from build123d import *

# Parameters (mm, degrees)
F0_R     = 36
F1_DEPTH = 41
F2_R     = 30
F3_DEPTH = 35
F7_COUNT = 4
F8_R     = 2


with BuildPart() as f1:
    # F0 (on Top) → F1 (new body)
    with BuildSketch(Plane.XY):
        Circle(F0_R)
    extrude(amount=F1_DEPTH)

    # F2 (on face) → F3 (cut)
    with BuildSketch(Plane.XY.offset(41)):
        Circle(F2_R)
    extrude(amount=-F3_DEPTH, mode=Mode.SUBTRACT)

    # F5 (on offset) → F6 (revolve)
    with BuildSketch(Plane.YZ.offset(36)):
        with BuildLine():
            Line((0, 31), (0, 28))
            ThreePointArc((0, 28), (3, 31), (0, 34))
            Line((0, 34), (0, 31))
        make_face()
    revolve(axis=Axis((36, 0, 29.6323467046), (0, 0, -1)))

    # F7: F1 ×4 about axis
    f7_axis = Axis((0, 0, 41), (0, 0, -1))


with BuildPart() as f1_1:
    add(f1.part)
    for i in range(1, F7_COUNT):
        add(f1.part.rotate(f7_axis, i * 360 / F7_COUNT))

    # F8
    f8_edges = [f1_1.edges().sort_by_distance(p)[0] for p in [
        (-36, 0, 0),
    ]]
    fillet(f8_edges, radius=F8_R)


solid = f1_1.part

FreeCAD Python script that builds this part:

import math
import FreeCAD as App
import Part
import Sketcher
Q = App.Units.Quantity


def edges_at(feature, points):
    """Names of the edges that pass closest to the given points."""
    edges = feature.Shape.Edges
    near = lambda p: min(range(len(edges)), key=lambda i: edges[i].distToShape(Part.Vertex(*p))[0])
    return sorted({f"Edge{near(p) + 1}" for p in points})

doc = App.newDocument("Part")
body = doc.addObject("PartDesign::Body", "Body")

# Sketch on XY plane
sketch1 = doc.addObject("Sketcher::SketchObject", "Sketch")
body.addObject(sketch1)
sketch1.AttachmentSupport = (doc.XY_Plane, [""])
sketch1.MapMode = "FlatFace"
sketch1.addGeometry(Part.Circle(App.Vector(0, 0, 0), App.Vector(0, 0, 1), 36), False)
sketch1.addConstraint(Sketcher.Constraint("Coincident", 0, 3, -1, 1))
sketch1.addConstraint(Sketcher.Constraint("Diameter", 0, Q("72 mm")))
pad1 = doc.addObject("PartDesign::Pad", "Pad")
body.addObject(pad1)
pad1.Profile = sketch1
pad1.Length = 41

# Sketch on XY plane
sketch2 = doc.addObject("Sketcher::SketchObject", "Sketch001")
body.addObject(sketch2)
sketch2.AttachmentSupport = (doc.XY_Plane, [""])
sketch2.MapMode = "FlatFace"
sketch2.AttachmentOffset = App.Placement(App.Vector(0, 0, 41), App.Rotation())
sketch2.addGeometry(Part.Circle(App.Vector(0, 0, 0), App.Vector(0, 0, 1), 30), False)
sketch2.addConstraint(Sketcher.Constraint("Coincident", 0, 3, -1, 1))
sketch2.addConstraint(Sketcher.Constraint("Diameter", 0, Q("60 mm")))
pocket1 = doc.addObject("PartDesign::Pocket", "Pocket")
body.addObject(pocket1)
pocket1.Profile = sketch2
pocket1.Length = 35

# Sketch on YZ plane
sketch3 = doc.addObject("Sketcher::SketchObject", "Sketch002")
body.addObject(sketch3)
sketch3.AttachmentSupport = (doc.YZ_Plane, [""])
sketch3.MapMode = "FlatFace"
sketch3.AttachmentOffset = App.Placement(App.Vector(0, 0, 36), App.Rotation())
sketch3.addGeometry(Part.ArcOfCircle(Part.Circle(App.Vector(0, 31, 0), App.Vector(0, 0, 1), 3), math.radians(-90), math.radians(90)), False)
sketch3.addGeometry(Part.LineSegment(App.Vector(0, 34, 0), App.Vector(0, 28, 0)), False)
sketch3.addConstraint(Sketcher.Constraint("Coincident", 0, 1, 1, 2))
sketch3.addConstraint(Sketcher.Constraint("Coincident", 1, 1, 0, 2))
sketch3.addConstraint(Sketcher.Constraint("Vertical", 1))
sketch3.addConstraint(Sketcher.Constraint("PointOnObject", 0, 3, -2))
sketch3.addConstraint(Sketcher.Constraint("PointOnObject", 0, 1, -2))
sketch3.addConstraint(Sketcher.Constraint("Radius", 0, Q("3 mm")))
sketch3.addConstraint(Sketcher.Constraint("DistanceY", -1, 1, 0, 3, Q("31 mm")))
revolution = doc.addObject("PartDesign::Revolution", "Revolution")
body.addObject(revolution)
revolution.Profile = sketch3
revolution.ReferenceAxis = (sketch3, ["V_Axis"])
revolution.Angle = 360
body2 = doc.addObject("PartDesign::Body", "Body001")
doc.recompute()

body2.BaseFeature = body
doc.recompute()

body3 = doc.addObject("PartDesign::Body", "Body002")
body3.BaseFeature = body
body3.Placement = App.Placement(App.Vector(0, 0, 0), App.Rotation(App.Vector(0, 0, -1), 90))
boolean = doc.addObject("PartDesign::Boolean", "Boolean")
body2.addObject(boolean)
boolean.Type = "Fuse"
boolean.addObjects([body3])
doc.recompute()

body4 = doc.addObject("PartDesign::Body", "Body003")
body4.BaseFeature = body
body4.Placement = App.Placement(App.Vector(0, 0, 0), App.Rotation(App.Vector(0, 0, -1), 180))
boolean2 = doc.addObject("PartDesign::Boolean", "Boolean001")
body2.addObject(boolean2)
boolean2.Type = "Fuse"
boolean2.addObjects([body4])
doc.recompute()

body.Placement = App.Placement(App.Vector(0, 0, 0), App.Rotation(App.Vector(0, 0, -1), 270))
boolean3 = doc.addObject("PartDesign::Boolean", "Boolean002")
body2.addObject(boolean3)
boolean3.Type = "Fuse"
boolean3.addObjects([body])
doc.recompute()

fillet = doc.addObject("PartDesign::Fillet", "Fillet")
body2.addObject(fillet)
fillet.Base = (boolean3, edges_at(boolean3, [(-36, 0, 0)]))
fillet.Radius = 2

doc.recompute()
